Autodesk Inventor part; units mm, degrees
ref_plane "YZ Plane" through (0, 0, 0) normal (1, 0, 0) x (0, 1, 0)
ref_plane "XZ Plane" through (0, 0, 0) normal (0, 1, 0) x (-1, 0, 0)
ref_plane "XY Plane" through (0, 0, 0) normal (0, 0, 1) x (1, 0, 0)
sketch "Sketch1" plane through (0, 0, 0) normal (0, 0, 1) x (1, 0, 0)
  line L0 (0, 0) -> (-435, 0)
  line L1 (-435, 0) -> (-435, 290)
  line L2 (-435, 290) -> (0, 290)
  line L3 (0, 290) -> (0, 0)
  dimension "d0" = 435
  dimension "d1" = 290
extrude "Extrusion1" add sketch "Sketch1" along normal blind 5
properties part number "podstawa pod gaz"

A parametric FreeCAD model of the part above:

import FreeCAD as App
import Part
import Sketcher
from FreeCAD import Vector
Q = App.Units.Quantity


def add_polygon(sketch, points):
    """Adds a closed chain of lines whose ends are joined by coincident constraints."""
    first, n = sketch.GeometryCount, len(points)
    for a, b in zip(points, points[1:] + points[:1]):
        sketch.addGeometry(Part.LineSegment(App.Vector(*a, 0), App.Vector(*b, 0)), False)
    for i in range(n):
        sketch.addConstraint(Sketcher.Constraint("Coincident", first + i, 2, first + (i + 1) % n, 1))

doc = App.newDocument("Part")
body = doc.addObject("PartDesign::Body", "Body")

# Sketch on XY plane
sketch1 = body.newObject("Sketcher::SketchObject", "Sketch")
sketch1.AttachmentSupport = (doc.getObject("XY_Plane"), [""])
sketch1.MapMode = "FlatFace"
add_polygon(sketch1, [(-435, 0), (0, 0), (0, 290), (-435, 290)])  # lines 0-3
sketch1.addConstraint([
    Sketcher.Constraint("Horizontal", 0),
    Sketcher.Constraint("Vertical", 1),
    Sketcher.Constraint("Horizontal", 2),
    Sketcher.Constraint("Vertical", 3),
    Sketcher.Constraint("Coincident", 0, 2, -1, 1),
    Sketcher.Constraint("DistanceX", 0, 1, 0, 2, Q("435 mm")),
    Sketcher.Constraint("DistanceY", 1, 1, 1, 2, Q("290 mm")),
])
pad1 = body.newObject("PartDesign::Pad", "Pad")
pad1.Profile = sketch1
pad1.Length = 5

doc.recompute()
